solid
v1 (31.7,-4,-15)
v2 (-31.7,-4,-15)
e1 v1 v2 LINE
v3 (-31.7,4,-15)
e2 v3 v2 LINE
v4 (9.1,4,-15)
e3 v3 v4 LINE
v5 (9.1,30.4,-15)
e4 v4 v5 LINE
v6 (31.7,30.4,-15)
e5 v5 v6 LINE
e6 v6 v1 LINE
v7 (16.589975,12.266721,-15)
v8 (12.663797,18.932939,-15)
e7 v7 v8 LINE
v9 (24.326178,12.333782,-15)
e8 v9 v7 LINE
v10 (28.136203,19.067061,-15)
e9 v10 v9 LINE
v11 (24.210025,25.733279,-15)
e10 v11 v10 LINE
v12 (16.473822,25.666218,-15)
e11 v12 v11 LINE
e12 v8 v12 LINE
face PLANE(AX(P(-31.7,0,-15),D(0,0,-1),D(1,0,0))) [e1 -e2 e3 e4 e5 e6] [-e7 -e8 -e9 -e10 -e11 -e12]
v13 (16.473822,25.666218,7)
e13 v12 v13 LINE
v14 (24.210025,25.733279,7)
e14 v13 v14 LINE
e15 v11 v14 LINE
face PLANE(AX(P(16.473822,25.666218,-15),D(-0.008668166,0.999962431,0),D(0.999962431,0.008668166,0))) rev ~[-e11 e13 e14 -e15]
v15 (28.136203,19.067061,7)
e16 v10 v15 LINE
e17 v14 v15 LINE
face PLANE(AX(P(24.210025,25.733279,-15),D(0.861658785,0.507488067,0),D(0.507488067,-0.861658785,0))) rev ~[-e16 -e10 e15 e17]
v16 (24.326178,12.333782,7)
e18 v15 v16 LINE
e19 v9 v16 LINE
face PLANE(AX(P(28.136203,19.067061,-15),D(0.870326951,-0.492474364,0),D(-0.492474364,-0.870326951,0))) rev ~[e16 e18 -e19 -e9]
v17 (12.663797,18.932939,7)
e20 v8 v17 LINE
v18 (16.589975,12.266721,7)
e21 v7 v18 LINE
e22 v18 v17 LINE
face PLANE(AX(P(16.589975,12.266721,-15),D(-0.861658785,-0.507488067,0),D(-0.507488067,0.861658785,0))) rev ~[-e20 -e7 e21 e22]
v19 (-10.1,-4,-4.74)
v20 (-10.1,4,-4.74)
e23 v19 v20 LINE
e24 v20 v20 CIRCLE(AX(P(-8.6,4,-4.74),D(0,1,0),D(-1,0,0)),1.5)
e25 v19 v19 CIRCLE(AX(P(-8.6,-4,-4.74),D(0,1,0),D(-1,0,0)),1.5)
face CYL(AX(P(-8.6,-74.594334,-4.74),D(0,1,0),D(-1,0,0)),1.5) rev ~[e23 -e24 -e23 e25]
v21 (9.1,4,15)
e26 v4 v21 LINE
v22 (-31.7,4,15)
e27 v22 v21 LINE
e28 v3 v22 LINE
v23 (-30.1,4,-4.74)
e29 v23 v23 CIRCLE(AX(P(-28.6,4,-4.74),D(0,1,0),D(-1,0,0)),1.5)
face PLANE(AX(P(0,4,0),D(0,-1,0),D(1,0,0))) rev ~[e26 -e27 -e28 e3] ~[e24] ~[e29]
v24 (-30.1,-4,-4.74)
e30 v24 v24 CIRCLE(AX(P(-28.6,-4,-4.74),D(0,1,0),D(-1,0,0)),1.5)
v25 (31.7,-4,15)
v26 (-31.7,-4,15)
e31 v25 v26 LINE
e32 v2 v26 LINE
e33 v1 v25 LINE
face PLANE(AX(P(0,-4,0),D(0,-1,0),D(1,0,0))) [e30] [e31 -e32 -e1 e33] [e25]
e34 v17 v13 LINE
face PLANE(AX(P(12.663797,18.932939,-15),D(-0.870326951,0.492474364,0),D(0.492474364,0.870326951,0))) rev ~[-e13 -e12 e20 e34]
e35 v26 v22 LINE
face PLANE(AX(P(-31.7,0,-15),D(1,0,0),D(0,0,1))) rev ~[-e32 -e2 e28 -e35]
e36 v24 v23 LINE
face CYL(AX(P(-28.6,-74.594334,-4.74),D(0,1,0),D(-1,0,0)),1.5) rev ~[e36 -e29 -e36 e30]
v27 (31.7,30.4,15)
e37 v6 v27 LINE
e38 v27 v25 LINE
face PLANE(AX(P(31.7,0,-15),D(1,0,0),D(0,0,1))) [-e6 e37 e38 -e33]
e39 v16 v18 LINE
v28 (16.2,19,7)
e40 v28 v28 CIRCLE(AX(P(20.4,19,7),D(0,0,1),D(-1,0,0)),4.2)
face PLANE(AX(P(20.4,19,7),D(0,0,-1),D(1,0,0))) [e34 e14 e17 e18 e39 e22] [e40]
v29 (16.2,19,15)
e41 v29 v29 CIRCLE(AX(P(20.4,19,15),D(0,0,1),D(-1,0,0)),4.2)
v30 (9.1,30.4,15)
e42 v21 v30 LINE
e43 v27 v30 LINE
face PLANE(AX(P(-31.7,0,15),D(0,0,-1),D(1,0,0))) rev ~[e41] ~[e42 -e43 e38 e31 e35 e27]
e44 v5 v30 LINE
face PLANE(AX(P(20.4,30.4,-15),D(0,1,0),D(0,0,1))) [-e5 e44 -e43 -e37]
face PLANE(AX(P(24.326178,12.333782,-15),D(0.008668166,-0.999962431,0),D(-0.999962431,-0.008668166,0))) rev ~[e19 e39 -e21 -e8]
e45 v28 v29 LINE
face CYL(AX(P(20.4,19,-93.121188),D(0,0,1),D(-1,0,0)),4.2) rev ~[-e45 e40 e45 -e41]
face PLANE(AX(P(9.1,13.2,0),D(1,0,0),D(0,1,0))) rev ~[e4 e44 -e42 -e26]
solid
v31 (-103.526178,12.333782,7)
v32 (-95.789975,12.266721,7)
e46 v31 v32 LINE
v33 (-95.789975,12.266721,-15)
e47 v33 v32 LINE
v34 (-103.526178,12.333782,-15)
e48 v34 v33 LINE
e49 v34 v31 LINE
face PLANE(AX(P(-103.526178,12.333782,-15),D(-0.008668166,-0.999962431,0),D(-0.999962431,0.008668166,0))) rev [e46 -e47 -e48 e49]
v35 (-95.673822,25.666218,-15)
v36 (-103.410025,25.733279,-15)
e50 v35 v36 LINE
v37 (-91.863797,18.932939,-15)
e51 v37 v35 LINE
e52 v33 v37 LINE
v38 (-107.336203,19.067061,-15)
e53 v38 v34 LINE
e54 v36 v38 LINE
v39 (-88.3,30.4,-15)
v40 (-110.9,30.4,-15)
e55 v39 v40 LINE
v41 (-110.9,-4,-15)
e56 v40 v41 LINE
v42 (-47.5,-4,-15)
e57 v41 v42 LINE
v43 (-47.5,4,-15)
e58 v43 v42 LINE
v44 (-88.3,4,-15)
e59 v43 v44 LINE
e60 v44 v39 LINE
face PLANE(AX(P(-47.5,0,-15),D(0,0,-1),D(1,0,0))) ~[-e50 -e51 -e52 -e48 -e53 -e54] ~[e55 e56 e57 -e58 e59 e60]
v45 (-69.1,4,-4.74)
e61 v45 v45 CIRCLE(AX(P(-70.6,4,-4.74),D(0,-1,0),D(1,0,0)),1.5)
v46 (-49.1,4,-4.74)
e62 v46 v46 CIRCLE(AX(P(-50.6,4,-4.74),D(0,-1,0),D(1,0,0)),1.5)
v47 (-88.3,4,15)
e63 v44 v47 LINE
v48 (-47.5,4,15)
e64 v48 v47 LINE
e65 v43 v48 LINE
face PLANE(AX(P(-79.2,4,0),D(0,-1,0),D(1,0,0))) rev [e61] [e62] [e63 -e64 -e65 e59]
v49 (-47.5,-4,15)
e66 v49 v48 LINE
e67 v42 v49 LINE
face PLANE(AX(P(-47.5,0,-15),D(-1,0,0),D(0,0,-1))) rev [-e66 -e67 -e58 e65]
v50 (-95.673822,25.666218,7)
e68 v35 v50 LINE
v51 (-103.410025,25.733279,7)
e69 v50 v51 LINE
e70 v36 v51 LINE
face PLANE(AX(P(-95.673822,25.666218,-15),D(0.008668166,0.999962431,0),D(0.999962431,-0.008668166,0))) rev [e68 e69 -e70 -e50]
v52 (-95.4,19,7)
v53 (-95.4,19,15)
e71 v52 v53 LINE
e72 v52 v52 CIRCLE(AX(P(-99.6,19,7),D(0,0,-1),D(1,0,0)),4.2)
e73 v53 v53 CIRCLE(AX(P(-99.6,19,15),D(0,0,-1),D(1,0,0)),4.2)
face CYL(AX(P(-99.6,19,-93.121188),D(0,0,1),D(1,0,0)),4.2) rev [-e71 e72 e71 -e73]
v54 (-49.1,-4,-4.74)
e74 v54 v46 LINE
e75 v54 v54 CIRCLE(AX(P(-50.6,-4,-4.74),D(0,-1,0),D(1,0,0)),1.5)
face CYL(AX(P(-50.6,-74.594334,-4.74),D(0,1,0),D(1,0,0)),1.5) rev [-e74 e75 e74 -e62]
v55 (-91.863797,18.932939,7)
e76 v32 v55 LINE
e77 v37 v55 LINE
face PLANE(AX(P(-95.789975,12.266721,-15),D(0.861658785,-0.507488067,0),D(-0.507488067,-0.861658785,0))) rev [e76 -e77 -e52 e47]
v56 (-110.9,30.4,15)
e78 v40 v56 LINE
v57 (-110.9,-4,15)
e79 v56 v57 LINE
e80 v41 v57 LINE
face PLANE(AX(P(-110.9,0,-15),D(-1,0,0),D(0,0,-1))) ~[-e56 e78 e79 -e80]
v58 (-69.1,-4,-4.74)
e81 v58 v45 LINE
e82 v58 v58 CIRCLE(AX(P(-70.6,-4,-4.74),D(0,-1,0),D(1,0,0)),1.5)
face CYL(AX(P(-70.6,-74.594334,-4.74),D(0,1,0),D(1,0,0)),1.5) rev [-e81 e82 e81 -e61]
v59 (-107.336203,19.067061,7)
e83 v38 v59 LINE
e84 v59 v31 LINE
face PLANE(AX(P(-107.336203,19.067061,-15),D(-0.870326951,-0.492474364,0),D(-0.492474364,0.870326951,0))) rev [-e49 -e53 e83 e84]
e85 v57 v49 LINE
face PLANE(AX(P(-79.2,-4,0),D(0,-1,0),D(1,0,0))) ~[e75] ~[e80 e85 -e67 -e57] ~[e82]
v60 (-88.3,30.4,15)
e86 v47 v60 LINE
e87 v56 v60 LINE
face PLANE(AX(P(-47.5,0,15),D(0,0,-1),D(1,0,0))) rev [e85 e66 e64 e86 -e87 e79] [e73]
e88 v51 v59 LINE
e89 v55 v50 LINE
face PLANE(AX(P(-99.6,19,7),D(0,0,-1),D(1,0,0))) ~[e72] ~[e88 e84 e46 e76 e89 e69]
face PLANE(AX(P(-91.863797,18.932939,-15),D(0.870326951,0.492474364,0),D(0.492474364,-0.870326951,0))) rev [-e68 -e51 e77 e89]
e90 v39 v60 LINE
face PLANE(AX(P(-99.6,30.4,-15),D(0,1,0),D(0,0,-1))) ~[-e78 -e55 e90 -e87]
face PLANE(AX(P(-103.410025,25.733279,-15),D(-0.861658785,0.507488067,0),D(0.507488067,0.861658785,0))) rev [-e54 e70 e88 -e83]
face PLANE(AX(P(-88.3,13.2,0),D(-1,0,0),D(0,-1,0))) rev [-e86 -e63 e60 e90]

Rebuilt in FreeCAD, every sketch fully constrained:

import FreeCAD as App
import Part
import Sketcher
Q = App.Units.Quantity


def add_polygon(sketch, points):
    """Adds a closed chain of lines whose ends are joined by coincident constraints."""
    first, n = sketch.GeometryCount, len(points)
    for a, b in zip(points, points[1:] + points[:1]):
        sketch.addGeometry(Part.LineSegment(App.Vector(*a, 0), App.Vector(*b, 0)), False)
    for i in range(n):
        sketch.addConstraint(Sketcher.Constraint("Coincident", first + i, 2, first + (i + 1) % n, 1))

doc = App.newDocument("Part")
body = doc.addObject("PartDesign::Body", "Body")

# Sketch on XZ plane
sketch1 = body.newObject("Sketcher::SketchObject", "Sketch")
sketch1.AttachmentSupport = (doc.getObject("XZ_Plane"), [""])
sketch1.MapMode = "FlatFace"
add_polygon(sketch1, [(-32, 15), (-32, -15), (32, -15), (32, 15)])  # lines 0-3
sketch1.addConstraint(Sketcher.Constraint("Vertical", 0))
sketch1.addConstraint(Sketcher.Constraint("Horizontal", 1))
sketch1.addConstraint(Sketcher.Constraint("Vertical", 2))
sketch1.addConstraint(Sketcher.Constraint("Horizontal", 3))
sketch1.addConstraint(Sketcher.Constraint("Symmetric", 0, 2, 2, 2, -1, 1))
sketch1.addConstraint(Sketcher.Constraint("DistanceY", 0, 2, 0, 1, Q("30 mm")))
sketch1.addConstraint(Sketcher.Constraint("DistanceX", 1, 1, 1, 2, Q("63.4 mm")))
pad1 = body.newObject("PartDesign::Pad", "Pad")
pad1.Profile = sketch1
pad1.Length = 8
pad1.Midplane = True

# Sketch on XZ plane
sketch2 = body.newObject("Sketcher::SketchObject", "Sketch001")
sketch2.AttachmentSupport = (doc.getObject("XZ_Plane"), [""])
sketch2.MapMode = "FlatFace"
sketch2.AttachmentOffset = App.Placement(App.Vector(0, 0, 4), App.Rotation())
sketch2.addGeometry(Part.Circle(App.Vector(-28.6, -4.7, 0), App.Vector(0, 0, 1), 1.5), False)
sketch2.addGeometry(Part.Circle(App.Vector(-8.6, -4.7, 0), App.Vector(0, 0, 1), 1.5), False)
sketch2.addConstraint(Sketcher.Constraint("Equal", 0, 1))
sketch2.addConstraint(Sketcher.Constraint("Horizontal", 0, 3, 1, 3))
sketch2.addConstraint(Sketcher.Constraint("Diameter", 0, Q("3 mm")))
sketch2.addConstraint(Sketcher.Constraint("DistanceX", 0, 3, 1, 3, Q("20 mm")))
sketch2.addConstraint(Sketcher.Constraint("DistanceX", 0, 3, -1, 1, Q("28.6 mm")))
sketch2.addConstraint(Sketcher.Constraint("DistanceY", 0, 3, -1, 1, Q("4.74 mm")))
doc.recompute()
hole = body.newObject("PartDesign::Hole", "Hole")
hole.Profile = sketch2
hole.ThreadType = "None"
hole.Diameter = 3
hole.DepthType = "ThroughAll"

# Sketch on YZ plane
sketch3 = body.newObject("Sketcher::SketchObject", "Sketch002")
sketch3.AttachmentSupport = (doc.getObject("YZ_Plane"), [""])
sketch3.MapMode = "FlatFace"
sketch3.AttachmentOffset = App.Placement(App.Vector(0, 0, 20.4), App.Rotation())
add_polygon(sketch3, [(-4, 15), (-4, -15), (30, -15), (30, 15)])  # lines 0-3
sketch3.addConstraint(Sketcher.Constraint("Vertical", 0))
sketch3.addConstraint(Sketcher.Constraint("Horizontal", 1))
sketch3.addConstraint(Sketcher.Constraint("Vertical", 2))
sketch3.addConstraint(Sketcher.Constraint("Horizontal", 3))
sketch3.addConstraint(Sketcher.Constraint("DistanceY", 0, 2, 0, 1, Q("30 mm")))
sketch3.addConstraint(Sketcher.Constraint("DistanceX", 1, 1, 1, 2, Q("34.4 mm")))
sketch3.addConstraint(Sketcher.Constraint("DistanceX", 0, 2, -1, 1, Q("4 mm")))
sketch3.addConstraint(Sketcher.Constraint("DistanceY", 0, 2, -1, 1, Q("15 mm")))
pad2 = body.newObject("PartDesign::Pad", "Pad001")
pad2.Profile = sketch3
pad2.Length = 22.6
pad2.Midplane = True

# Sketch on XY plane
sketch4 = body.newObject("Sketcher::SketchObject", "Sketch003")
sketch4.AttachmentSupport = (doc.getObject("XY_Plane"), [""])
sketch4.MapMode = "FlatFace"
sketch4.AttachmentOffset = App.Placement(App.Vector(0, 0, -15), App.Rotation())
sketch4.addGeometry(Part.Circle(App.Vector(20.4, 19, 0), App.Vector(0, 0, 1), 4.2), False)
sketch4.addConstraint(Sketcher.Constraint("Diameter", 0, Q("8.4 mm")))
sketch4.addConstraint(Sketcher.Constraint("DistanceY", -1, 1, 0, 3, Q("19 mm")))
sketch4.addConstraint(Sketcher.Constraint("DistanceX", -1, 1, 0, 3, Q("20.4 mm")))
doc.recompute()
hole2 = body.newObject("PartDesign::Hole", "Hole001")
hole2.Profile = sketch4
hole2.ThreadType = "None"
hole2.Diameter = 8.4
hole2.DepthType = "ThroughAll"
hole2.Reversed = True

# Sketch on XY plane
sketch5 = body.newObject("Sketcher::SketchObject", "Sketch004")
sketch5.AttachmentSupport = (doc.getObject("XY_Plane"), [""])
sketch5.MapMode = "FlatFace"
sketch5.AttachmentOffset = App.Placement(App.Vector(0, 0, -15), App.Rotation())
add_polygon(sketch5, [(12.7, 18.9), (16.5, 25.7), (24.2, 25.7), (28.1, 19.1), (24.3, 12.3), (16.6, 12.3)])  # lines 0-5
sketch5.addGeometry(Part.Circle(App.Vector(20.4, 19, 0), App.Vector(0, 0, 1), 4.2), False)  # 6
sketch5.addConstraint(Sketcher.Constraint("Parallel", 0, 3))
sketch5.addConstraint(Sketcher.Constraint("Parallel", 1, 4))
sketch5.addConstraint(Sketcher.Constraint("Parallel", 2, 5))
sketch5.addConstraint(Sketcher.Constraint("Equal", 0, 1))
sketch5.addConstraint(Sketcher.Constraint("Equal", 1, 2))
sketch5.addConstraint(Sketcher.Constraint("Equal", 2, 3))
sketch5.addConstraint(Sketcher.Constraint("Diameter", 6, Q("8.4 mm")))
sketch5.addConstraint(Sketcher.Constraint("DistanceY", -1, 1, 6, 3, Q("19 mm")))
sketch5.addConstraint(Sketcher.Constraint("DistanceX", -1, 1, 6, 3, Q("20.4 mm")))
sketch5.addConstraint(Sketcher.Constraint("DistanceX", -1, 1, 0, 2, Q("16.473822 mm")))
sketch5.addConstraint(Sketcher.Constraint("DistanceY", -1, 1, 1, 2, Q("25.733279 mm")))
sketch5.addConstraint(Sketcher.Constraint("DistanceY", -1, 1, 2, 2, Q("19.067061 mm")))
sketch5.addConstraint(Sketcher.Constraint("DistanceX", -1, 1, 3, 2, Q("24.326178 mm")))
sketch5.addConstraint(Sketcher.Constraint("DistanceY", -1, 1, 4, 2, Q("12.266721 mm")))
sketch5.addConstraint(Sketcher.Constraint("DistanceY", 0, 2, 1, 2, Q("0.067061 mm")))
pocket1 = body.newObject("PartDesign::Pocket", "Pocket")
pocket1.Profile = sketch5
pocket1.Length = 22
pocket1.Reversed = True
body2 = doc.addObject("PartDesign::Body", "Body001")
doc.recompute()

mirroring = doc.addObject("Part::Mirroring", "Mirroring")
mirroring.Source = body
mirroring.Base = App.Vector(-39.6, 0, 0)
mirroring.Normal = App.Vector(1, 0, 0)
body2.BaseFeature = mirroring
doc.recompute()
mirroring.Visibility = False

doc.recompute()
